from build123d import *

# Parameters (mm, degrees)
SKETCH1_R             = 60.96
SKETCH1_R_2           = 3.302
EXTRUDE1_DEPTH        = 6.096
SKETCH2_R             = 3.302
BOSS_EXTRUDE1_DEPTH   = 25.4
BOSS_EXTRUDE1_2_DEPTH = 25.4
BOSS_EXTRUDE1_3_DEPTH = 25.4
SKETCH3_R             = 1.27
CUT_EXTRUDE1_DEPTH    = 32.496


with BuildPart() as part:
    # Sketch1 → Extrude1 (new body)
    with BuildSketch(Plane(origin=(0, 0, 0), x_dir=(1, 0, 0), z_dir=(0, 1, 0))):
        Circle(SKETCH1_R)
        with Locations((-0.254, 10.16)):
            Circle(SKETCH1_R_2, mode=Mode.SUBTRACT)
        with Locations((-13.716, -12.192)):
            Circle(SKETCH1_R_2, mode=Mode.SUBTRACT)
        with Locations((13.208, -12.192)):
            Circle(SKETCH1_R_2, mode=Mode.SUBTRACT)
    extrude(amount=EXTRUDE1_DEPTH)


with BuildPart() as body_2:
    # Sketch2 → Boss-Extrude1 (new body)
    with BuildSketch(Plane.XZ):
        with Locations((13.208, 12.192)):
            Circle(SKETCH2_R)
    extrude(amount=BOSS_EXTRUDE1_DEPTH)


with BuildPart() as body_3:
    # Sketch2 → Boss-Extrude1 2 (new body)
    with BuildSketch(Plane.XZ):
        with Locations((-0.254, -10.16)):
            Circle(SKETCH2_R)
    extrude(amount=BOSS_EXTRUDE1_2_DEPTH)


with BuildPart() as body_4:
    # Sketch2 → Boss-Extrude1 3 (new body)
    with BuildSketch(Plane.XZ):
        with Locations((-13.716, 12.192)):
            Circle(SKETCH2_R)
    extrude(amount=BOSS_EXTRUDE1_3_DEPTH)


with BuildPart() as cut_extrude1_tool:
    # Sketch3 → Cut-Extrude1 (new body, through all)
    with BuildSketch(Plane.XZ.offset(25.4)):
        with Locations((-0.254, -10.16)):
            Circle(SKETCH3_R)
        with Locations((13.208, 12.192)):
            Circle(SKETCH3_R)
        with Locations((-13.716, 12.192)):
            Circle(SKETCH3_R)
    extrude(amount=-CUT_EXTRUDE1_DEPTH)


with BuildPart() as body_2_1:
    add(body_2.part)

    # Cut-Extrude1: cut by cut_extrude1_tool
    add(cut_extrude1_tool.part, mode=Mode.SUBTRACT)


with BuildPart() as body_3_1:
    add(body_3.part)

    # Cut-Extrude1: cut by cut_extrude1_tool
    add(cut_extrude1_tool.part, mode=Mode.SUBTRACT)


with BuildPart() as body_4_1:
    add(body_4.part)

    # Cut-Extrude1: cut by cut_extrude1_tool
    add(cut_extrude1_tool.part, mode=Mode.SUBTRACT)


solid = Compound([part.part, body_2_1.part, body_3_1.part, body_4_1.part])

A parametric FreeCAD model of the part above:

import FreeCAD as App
import Part
import Sketcher
Q = App.Units.Quantity

doc = App.newDocument("Part")
body = doc.addObject("PartDesign::Body", "Body")

# Sketch on XZ plane
sketch1 = body.newObject("Sketcher::SketchObject", "Sketch")
sketch1.AttachmentSupport = (doc.getObject("XZ_Plane"), [""])
sketch1.MapMode = "FlatFace"
sketch1.addGeometry([
    Part.Circle(App.Vector(0, 0, 0), App.Vector(0, 0, 1), 60.96),
    Part.Circle(App.Vector(-13.716, 12.192, 0), App.Vector(0, 0, 1), 3.302),
    Part.Circle(App.Vector(13.208, 12.192, 0), App.Vector(0, 0, 1), 3.302),
    Part.Circle(App.Vector(-0.254, -10.16, 0), App.Vector(0, 0, 1), 3.302),
], False)
sketch1.addConstraint([
    Sketcher.Constraint("Coincident", 0, 3, -1, 1),
    Sketcher.Constraint("Equal", 1, 2),
    Sketcher.Constraint("Equal", 2, 3),
    Sketcher.Constraint("Horizontal", 1, 3, 2, 3),
    Sketcher.Constraint("Diameter", 0, Q("4.8 in")),
    Sketcher.Constraint("Diameter", 1, Q("0.26 in")),
    Sketcher.Constraint("DistanceY", 3, 3, -1, 1, Q("0.4 in")),
    Sketcher.Constraint("DistanceX", 1, 3, -1, 1, Q("0.54 in")),
    Sketcher.Constraint("DistanceY", -1, 1, 1, 3, Q("0.48 in")),
    Sketcher.Constraint("DistanceX", -1, 1, 2, 3, Q("0.52 in")),
    Sketcher.Constraint("DistanceX", 3, 3, -1, 1, Q("0.01 in")),
])
pad1 = body.newObject("PartDesign::Pad", "Pad")
pad1.Profile = sketch1
pad1.Length = Q("0.24 in")
pad1.Reversed = True
body2 = doc.addObject("PartDesign::Body", "Body001")

# Sketch on XZ plane
sketch2 = body2.newObject("Sketcher::SketchObject", "Sketch001")
sketch2.AttachmentSupport = (doc.getObject("XZ_Plane001"), [""])
sketch2.MapMode = "FlatFace"
sketch2.addGeometry(Part.Circle(App.Vector(13.208, 12.192, 0), App.Vector(0, 0, 1), 3.302), False)
sketch2.addConstraint([
    Sketcher.Constraint("Diameter", 0, Q("0.26 in")),
    Sketcher.Constraint("DistanceX", -1, 1, 0, 3, Q("0.52 in")),
    Sketcher.Constraint("DistanceY", -1, 1, 0, 3, Q("0.48 in")),
])
pad2 = body2.newObject("PartDesign::Pad", "Pad001")
pad2.Profile = sketch2
pad2.Length = Q("1 in")
body3 = doc.addObject("PartDesign::Body", "Body002")

# Sketch on XZ plane
sketch3 = body3.newObject("Sketcher::SketchObject", "Sketch002")
sketch3.AttachmentSupport = (doc.getObject("XZ_Plane002"), [""])
sketch3.MapMode = "FlatFace"
sketch3.addGeometry(Part.Circle(App.Vector(-0.254, -10.16, 0), App.Vector(0, 0, 1), 3.302), False)
sketch3.addConstraint([
    Sketcher.Constraint("Diameter", 0, Q("0.26 in")),
    Sketcher.Constraint("DistanceY", 0, 3, -1, 1, Q("0.4 in")),
    Sketcher.Constraint("DistanceX", 0, 3, -1, 1, Q("0.01 in")),
])
pad3 = body3.newObject("PartDesign::Pad", "Pad002")
pad3.Profile = sketch3
pad3.Length = Q("1 in")
body4 = doc.addObject("PartDesign::Body", "Body003")

# Sketch on XZ plane
sketch4 = body4.newObject("Sketcher::SketchObject", "Sketch003")
sketch4.AttachmentSupport = (doc.getObject("XZ_Plane003"), [""])
sketch4.MapMode = "FlatFace"
sketch4.addGeometry(Part.Circle(App.Vector(-13.716, 12.192, 0), App.Vector(0, 0, 1), 3.302), False)
sketch4.addConstraint([
    Sketcher.Constraint("Diameter", 0, Q("0.26 in")),
    Sketcher.Constraint("DistanceX", 0, 3, -1, 1, Q("0.54 in")),
    Sketcher.Constraint("DistanceY", -1, 1, 0, 3, Q("0.48 in")),
])
pad4 = body4.newObject("PartDesign::Pad", "Pad003")
pad4.Profile = sketch4
pad4.Length = Q("1 in")
body5 = doc.addObject("PartDesign::Body", "Body004")
body5.AllowCompound = True

# Sketch on XZ plane
sketch5 = body5.newObject("Sketcher::SketchObject", "Sketch004")
sketch5.AttachmentSupport = (doc.getObject("XZ_Plane004"), [""])
sketch5.MapMode = "FlatFace"
sketch5.AttachmentOffset = App.Placement(App.Vector(0, 0, 1 * 25.4), App.Rotation())
sketch5.addGeometry([
    Part.Circle(App.Vector(-0.254, -10.16, 0), App.Vector(0, 0, 1), 1.27),
    Part.Circle(App.Vector(13.208, 12.192, 0), App.Vector(0, 0, 1), 1.27),
    Part.Circle(App.Vector(-13.716, 12.192, 0), App.Vector(0, 0, 1), 1.27),
], False)
sketch5.addConstraint([
    Sketcher.Constraint("Equal", 0, 1),
    Sketcher.Constraint("Equal", 1, 2),
    Sketcher.Constraint("Horizontal", 1, 3, 2, 3),
    Sketcher.Constraint("Diameter", 0, Q("0.1 in")),
    Sketcher.Constraint("DistanceY", 0, 3, -1, 1, Q("0.4 in")),
    Sketcher.Constraint("DistanceX", 0, 3, -1, 1, Q("0.01 in")),
    Sketcher.Constraint("DistanceX", -1, 1, 1, 3, Q("0.52 in")),
    Sketcher.Constraint("DistanceY", -1, 1, 1, 3, Q("0.48 in")),
    Sketcher.Constraint("DistanceX", 2, 3, -1, 1, Q("0.54 in")),
])
pad5 = body5.newObject("PartDesign::Pad", "Pad004")
pad5.Profile = sketch5
pad5.Length = 32.496
pad5.Reversed = True
doc.recompute()

body6 = doc.addObject("PartDesign::Body", "Body005")
body6.BaseFeature = body5
boolean = body2.newObject("PartDesign::Boolean", "Boolean")
boolean.Type = "Cut"
boolean.addObjects([body6])
doc.recompute()

body7 = doc.addObject("PartDesign::Body", "Body006")
body7.BaseFeature = body5
boolean2 = body3.newObject("PartDesign::Boolean", "Boolean001")
boolean2.Type = "Cut"
boolean2.addObjects([body7])
doc.recompute()

boolean3 = body4.newObject("PartDesign::Boolean", "Boolean002")
boolean3.Type = "Cut"
boolean3.addObjects([body5])

doc.recompute()
